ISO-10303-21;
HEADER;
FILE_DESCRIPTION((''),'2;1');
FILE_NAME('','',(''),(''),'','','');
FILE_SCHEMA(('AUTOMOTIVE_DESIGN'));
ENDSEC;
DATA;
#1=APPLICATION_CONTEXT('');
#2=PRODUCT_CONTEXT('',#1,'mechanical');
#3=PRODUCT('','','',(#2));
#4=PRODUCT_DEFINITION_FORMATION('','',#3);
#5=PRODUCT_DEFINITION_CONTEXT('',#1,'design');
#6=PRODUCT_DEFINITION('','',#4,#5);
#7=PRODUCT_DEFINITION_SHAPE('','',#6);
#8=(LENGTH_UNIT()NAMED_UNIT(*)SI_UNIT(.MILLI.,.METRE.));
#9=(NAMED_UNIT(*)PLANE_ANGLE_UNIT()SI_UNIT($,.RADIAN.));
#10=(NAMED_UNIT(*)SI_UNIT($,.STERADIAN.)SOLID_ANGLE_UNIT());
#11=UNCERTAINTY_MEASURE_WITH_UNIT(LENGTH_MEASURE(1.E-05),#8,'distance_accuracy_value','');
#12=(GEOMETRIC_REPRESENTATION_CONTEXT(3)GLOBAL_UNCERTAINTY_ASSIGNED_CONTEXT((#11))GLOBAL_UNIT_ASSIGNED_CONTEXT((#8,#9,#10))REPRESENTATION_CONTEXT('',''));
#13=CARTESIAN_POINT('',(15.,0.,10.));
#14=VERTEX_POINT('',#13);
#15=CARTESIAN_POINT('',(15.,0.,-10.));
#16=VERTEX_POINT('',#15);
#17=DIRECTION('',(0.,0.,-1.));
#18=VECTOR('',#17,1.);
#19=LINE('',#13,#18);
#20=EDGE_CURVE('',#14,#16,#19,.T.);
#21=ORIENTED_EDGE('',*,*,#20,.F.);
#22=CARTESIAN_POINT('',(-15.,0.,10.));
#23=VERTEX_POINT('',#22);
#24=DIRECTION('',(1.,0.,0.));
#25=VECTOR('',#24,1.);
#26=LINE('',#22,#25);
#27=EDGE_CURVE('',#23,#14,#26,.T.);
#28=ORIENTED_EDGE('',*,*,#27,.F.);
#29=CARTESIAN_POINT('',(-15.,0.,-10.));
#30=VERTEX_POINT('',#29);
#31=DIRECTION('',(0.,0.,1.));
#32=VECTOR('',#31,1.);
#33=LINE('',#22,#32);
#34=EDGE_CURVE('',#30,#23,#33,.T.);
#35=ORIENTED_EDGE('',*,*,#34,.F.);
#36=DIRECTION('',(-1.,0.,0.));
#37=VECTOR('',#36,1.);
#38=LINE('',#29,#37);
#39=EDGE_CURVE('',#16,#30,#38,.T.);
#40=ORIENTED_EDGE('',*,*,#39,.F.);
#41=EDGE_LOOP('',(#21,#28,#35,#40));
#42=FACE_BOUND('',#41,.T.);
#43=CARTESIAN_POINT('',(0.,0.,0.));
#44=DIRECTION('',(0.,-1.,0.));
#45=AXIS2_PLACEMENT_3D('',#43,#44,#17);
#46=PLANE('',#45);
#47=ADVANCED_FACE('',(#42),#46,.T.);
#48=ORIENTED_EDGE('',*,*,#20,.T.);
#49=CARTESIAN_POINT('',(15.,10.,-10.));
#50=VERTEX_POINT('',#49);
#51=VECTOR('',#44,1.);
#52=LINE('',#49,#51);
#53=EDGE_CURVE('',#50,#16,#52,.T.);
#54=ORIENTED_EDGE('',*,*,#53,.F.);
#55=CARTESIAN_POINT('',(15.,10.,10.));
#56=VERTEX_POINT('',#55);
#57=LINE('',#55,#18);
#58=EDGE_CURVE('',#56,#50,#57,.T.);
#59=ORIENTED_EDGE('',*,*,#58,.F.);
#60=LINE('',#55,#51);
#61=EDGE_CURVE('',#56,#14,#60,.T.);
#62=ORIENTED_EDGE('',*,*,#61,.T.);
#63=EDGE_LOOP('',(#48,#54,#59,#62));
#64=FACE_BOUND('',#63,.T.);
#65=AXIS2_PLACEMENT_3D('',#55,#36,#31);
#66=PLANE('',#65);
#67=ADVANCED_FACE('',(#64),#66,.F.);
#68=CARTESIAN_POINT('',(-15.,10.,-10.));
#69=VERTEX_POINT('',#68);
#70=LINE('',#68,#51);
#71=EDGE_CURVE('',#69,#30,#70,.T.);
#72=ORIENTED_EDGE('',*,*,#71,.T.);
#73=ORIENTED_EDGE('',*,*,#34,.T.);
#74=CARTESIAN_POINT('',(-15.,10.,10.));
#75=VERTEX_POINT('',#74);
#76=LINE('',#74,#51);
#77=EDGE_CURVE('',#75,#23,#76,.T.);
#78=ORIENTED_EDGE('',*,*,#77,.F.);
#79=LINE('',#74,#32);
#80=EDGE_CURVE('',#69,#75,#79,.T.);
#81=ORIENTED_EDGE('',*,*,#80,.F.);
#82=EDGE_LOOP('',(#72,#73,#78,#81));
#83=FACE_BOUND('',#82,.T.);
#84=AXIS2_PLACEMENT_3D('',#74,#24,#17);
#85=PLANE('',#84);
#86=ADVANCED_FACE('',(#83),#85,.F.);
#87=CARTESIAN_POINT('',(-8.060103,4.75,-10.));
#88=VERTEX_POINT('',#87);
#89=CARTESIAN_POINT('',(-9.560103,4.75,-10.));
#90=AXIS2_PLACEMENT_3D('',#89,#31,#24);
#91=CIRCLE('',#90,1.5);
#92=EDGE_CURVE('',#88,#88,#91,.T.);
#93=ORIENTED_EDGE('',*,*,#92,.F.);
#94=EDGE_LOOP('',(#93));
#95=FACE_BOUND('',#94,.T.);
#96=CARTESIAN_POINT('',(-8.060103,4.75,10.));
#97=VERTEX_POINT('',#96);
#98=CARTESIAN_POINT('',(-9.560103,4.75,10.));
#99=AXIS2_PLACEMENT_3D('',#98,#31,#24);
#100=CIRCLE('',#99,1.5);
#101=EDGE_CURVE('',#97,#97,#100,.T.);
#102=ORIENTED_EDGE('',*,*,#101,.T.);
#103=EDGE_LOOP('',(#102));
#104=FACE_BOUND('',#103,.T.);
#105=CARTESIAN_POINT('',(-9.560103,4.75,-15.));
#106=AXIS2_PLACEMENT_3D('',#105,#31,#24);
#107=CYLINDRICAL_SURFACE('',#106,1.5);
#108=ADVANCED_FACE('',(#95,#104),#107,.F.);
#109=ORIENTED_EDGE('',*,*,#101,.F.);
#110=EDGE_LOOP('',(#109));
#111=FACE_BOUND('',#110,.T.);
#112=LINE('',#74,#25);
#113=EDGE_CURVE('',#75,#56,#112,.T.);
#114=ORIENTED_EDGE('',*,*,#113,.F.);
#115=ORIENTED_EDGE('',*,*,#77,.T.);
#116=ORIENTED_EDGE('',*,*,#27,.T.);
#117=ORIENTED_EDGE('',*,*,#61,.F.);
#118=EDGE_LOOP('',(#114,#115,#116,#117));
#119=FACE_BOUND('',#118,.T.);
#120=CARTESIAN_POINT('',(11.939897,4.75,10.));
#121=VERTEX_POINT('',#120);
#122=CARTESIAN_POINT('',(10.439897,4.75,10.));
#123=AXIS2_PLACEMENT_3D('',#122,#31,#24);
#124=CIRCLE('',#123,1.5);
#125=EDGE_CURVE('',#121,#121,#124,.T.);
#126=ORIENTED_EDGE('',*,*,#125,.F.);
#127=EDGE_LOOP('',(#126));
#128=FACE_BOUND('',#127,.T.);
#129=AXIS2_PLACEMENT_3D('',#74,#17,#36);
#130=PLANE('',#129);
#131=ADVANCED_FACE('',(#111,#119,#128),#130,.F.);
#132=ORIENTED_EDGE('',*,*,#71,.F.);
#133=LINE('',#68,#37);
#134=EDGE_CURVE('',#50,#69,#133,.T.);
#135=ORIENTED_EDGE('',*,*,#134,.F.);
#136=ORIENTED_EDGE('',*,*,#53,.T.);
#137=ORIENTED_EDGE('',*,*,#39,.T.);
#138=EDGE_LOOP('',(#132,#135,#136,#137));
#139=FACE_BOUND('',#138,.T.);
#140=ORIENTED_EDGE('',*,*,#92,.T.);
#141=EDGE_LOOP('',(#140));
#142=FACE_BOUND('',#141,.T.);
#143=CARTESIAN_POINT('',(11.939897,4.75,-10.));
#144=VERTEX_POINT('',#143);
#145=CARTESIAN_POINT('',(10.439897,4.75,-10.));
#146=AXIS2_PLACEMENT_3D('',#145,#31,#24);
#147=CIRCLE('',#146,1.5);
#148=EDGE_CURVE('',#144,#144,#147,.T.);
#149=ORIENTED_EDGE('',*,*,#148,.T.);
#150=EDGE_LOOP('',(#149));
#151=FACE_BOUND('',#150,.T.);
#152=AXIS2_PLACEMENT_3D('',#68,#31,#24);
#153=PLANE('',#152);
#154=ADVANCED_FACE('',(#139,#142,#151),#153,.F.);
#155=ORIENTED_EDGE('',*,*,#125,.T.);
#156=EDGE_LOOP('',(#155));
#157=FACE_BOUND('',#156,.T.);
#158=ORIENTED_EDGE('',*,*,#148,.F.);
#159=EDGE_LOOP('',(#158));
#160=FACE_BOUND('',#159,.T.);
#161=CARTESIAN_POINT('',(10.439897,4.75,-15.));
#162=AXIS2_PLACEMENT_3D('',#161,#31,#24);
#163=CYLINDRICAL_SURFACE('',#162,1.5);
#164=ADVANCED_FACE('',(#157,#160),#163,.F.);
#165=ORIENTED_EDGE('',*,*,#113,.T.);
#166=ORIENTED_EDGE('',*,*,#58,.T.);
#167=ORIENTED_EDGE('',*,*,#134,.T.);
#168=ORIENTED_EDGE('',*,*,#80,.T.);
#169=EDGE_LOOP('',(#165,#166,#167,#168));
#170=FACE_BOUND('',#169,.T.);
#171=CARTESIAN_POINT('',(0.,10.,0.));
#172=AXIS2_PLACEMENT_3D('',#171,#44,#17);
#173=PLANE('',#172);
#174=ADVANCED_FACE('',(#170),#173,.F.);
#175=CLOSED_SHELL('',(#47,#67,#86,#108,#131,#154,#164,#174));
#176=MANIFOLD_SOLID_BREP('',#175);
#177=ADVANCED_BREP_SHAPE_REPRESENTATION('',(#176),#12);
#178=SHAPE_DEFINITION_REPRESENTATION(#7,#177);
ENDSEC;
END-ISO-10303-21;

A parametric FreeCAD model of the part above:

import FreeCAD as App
import Part
import Sketcher

V = App.Vector


def add_polygon(sketch, points):
    """Adds a closed chain of lines whose ends are joined by coincident constraints."""
    first, n = sketch.GeometryCount, len(points)
    for a, b in zip(points, points[1:] + points[:1]):
        sketch.addGeometry(Part.LineSegment(App.Vector(*a, 0), App.Vector(*b, 0)), False)
    for i in range(n):
        sketch.addConstraint(Sketcher.Constraint("Coincident", first + i, 2, first + (i + 1) % n, 1))

doc = App.newDocument("Part")
body = doc.addObject("PartDesign::Body", "Body")

sketch1 = body.newObject("Sketcher::SketchObject", "Sketch")
sketch1.AttachmentSupport = (doc.getObject("XZ_Plane"), [""])
sketch1.MapMode = "FlatFace"
add_polygon(sketch1, [(-15, -10), (-15, 10), (15, 10), (15, -10)])
sketch1.addConstraint([
    Sketcher.Constraint("Vertical", 0),
    Sketcher.Constraint("Horizontal", 1),
    Sketcher.Constraint("Vertical", 2),
    Sketcher.Constraint("Horizontal", 3),
    Sketcher.Constraint("Symmetric", 0, 2, 2, 2, -1, 1),
    Sketcher.Constraint("DistanceX", 1, 1, 1, 2, 30.0),
    Sketcher.Constraint("DistanceY", 0, 1, 0, 2, 20.0),
])
pad1 = body.newObject("PartDesign::Pad", "Pad")
pad1.Profile = sketch1
pad1.Length = 10
pad1.Reversed = True

sketch2 = body.newObject("Sketcher::SketchObject", "Sketch001")
sketch2.AttachmentSupport = (doc.getObject("XY_Plane"), [""])
sketch2.MapMode = "FlatFace"
sketch2.AttachmentOffset = App.Placement(V(0, 0, 10), App.Rotation())
sketch2.addGeometry([
    Part.Circle(V(-9.560103, 4.75, 0), V(0, 0, 1), 1.5),
    Part.Circle(V(10.439897, 4.75, 0), V(0, 0, 1), 1.5),
], False)
sketch2.addConstraint([
    Sketcher.Constraint("Equal", 0, 1),
    Sketcher.Constraint("Horizontal", 0, 3, 1, 3),
    Sketcher.Constraint("Diameter", 0, 3.0),
    Sketcher.Constraint("DistanceX", 0, 3, 1, 3, 20.0),
    Sketcher.Constraint("DistanceY", -1, 1, 0, 3, 4.75),
    Sketcher.Constraint("DistanceX", 0, 3, -1, 1, 9.560103),
])
pocket1 = body.newObject("PartDesign::Pocket", "Pocket")
pocket1.Profile = sketch2
pocket1.Length = 25

doc.recompute()
